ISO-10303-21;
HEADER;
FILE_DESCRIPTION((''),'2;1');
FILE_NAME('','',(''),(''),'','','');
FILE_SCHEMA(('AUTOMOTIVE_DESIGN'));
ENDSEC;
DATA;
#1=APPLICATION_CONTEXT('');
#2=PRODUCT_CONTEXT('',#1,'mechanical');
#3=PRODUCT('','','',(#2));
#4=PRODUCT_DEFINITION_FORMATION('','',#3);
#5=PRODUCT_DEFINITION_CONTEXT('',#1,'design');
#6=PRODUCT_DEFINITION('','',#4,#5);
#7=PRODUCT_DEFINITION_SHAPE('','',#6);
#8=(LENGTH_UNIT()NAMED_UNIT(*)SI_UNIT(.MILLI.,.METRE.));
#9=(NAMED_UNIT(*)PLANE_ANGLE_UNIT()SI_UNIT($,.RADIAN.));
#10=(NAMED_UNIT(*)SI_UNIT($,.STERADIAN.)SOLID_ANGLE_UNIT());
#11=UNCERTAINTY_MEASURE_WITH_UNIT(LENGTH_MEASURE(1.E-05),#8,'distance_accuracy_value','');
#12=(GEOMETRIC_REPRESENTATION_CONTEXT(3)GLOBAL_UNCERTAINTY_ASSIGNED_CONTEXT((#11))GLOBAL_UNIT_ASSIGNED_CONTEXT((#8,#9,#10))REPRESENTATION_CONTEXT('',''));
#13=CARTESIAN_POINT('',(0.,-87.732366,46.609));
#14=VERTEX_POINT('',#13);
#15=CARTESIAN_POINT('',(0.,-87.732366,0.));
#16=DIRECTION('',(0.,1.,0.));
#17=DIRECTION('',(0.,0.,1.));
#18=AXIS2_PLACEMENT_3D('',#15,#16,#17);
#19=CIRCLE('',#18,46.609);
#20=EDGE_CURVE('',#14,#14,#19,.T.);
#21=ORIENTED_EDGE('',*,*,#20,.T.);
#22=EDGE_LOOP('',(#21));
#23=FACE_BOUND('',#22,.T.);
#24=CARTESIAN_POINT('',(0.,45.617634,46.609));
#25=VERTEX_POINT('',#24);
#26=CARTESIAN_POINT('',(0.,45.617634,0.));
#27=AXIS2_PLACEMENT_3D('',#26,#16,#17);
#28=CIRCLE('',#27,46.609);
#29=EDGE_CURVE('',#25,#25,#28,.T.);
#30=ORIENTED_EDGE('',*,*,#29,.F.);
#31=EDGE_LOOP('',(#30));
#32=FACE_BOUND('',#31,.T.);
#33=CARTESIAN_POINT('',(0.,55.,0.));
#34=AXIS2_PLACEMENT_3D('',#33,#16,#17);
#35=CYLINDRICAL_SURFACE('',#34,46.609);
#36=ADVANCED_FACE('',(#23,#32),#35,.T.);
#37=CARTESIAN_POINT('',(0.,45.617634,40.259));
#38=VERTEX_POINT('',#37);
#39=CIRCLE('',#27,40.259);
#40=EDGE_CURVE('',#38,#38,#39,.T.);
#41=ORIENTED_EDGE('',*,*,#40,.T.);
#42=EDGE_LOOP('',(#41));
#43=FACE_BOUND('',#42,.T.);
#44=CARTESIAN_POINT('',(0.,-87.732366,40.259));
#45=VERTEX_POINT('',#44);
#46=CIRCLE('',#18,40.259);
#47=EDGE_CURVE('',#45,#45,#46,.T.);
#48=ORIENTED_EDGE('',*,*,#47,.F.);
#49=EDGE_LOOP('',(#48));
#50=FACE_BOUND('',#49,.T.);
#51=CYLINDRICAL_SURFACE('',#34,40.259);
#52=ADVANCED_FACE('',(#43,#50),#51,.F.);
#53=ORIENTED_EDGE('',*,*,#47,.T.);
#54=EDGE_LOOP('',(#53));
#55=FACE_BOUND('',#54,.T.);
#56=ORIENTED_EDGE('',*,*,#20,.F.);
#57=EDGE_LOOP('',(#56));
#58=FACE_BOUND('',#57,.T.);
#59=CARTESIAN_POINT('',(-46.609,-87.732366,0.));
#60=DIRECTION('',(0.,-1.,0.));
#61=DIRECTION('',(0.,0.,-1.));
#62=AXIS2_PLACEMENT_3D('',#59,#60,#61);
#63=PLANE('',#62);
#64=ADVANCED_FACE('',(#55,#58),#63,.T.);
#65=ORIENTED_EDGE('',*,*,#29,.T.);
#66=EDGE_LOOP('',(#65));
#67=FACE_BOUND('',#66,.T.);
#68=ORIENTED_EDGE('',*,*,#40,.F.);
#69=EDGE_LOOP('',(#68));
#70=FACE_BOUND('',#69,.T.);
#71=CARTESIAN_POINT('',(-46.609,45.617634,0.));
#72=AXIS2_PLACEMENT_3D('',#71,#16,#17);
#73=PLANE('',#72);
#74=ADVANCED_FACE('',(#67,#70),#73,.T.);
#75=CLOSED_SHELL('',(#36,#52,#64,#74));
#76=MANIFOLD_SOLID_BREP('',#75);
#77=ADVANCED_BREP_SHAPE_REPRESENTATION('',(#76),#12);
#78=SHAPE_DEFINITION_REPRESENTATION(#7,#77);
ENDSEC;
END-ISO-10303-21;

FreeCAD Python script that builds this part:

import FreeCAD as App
import Part
import Sketcher

V = App.Vector
Q = App.Units.Quantity

doc = App.newDocument("Part")
params = doc.addObject("Spreadsheet::Sheet", "Params")
for row, (alias, value) in enumerate([
    ("sketch1_width", "0.25 in"),
    ("sketch1_height", "5.25 in"),
    ("revolution_angle", "360 deg"),
], start=1):
    params.set(f"A{row}", alias)
    params.set(f"B{row}", "=" + value)
    params.setAlias(f"B{row}", alias)

body = doc.addObject("PartDesign::Body", "Body")

sketch1 = doc.addObject("Sketcher::SketchObject", "Sketch")
body.addObject(sketch1)
sketch1.AttachmentSupport = (doc.XY_Plane, [""])
sketch1.MapMode = "FlatFace"
sketch1.addGeometry(Part.LineSegment(V(-46.609, 45.617634, 0), V(-46.609, -87.732366, 0)), False)
sketch1.addGeometry(Part.LineSegment(V(-46.609, -87.732366, 0), V(-40.259, -87.732366, 0)), False)
sketch1.addGeometry(Part.LineSegment(V(-40.259, -87.732366, 0), V(-40.259, 45.617634, 0)), False)
sketch1.addGeometry(Part.LineSegment(V(-40.259, 45.617634, 0), V(-46.609, 45.617634, 0)), False)
sketch1.addConstraint(Sketcher.Constraint("Coincident", 0, 2, 1, 1))
sketch1.addConstraint(Sketcher.Constraint("Coincident", 1, 2, 2, 1))
sketch1.addConstraint(Sketcher.Constraint("Coincident", 2, 2, 3, 1))
sketch1.addConstraint(Sketcher.Constraint("Coincident", 3, 2, 0, 1))
sketch1.addConstraint(Sketcher.Constraint("Vertical", 0))
sketch1.addConstraint(Sketcher.Constraint("Horizontal", 1))
sketch1.addConstraint(Sketcher.Constraint("Vertical", 2))
sketch1.addConstraint(Sketcher.Constraint("Horizontal", 3))
sketch1.addConstraint(Sketcher.Constraint("DistanceX", 1, 1, 1, 2, Q("0.25 in")))
sketch1.addConstraint(Sketcher.Constraint("DistanceY", 0, 2, 0, 1, Q("5.25 in")))
sketch1.addConstraint(Sketcher.Constraint("DistanceX", 0, 2, -1, 1, Q("1.835 in")))
sketch1.addConstraint(Sketcher.Constraint("DistanceY", 0, 2, -1, 1, Q("87.732366 mm")))
sketch1.setExpression("Constraints[8]", "Params.sketch1_width")
sketch1.setExpression("Constraints[9]", "Params.sketch1_height")
revolution = doc.addObject("PartDesign::Revolution", "Revolution")
body.addObject(revolution)
revolution.Profile = sketch1
revolution.ReferenceAxis = (sketch1, ["V_Axis"])
revolution.setExpression("Angle", "Params.revolution_angle")

doc.recompute()
